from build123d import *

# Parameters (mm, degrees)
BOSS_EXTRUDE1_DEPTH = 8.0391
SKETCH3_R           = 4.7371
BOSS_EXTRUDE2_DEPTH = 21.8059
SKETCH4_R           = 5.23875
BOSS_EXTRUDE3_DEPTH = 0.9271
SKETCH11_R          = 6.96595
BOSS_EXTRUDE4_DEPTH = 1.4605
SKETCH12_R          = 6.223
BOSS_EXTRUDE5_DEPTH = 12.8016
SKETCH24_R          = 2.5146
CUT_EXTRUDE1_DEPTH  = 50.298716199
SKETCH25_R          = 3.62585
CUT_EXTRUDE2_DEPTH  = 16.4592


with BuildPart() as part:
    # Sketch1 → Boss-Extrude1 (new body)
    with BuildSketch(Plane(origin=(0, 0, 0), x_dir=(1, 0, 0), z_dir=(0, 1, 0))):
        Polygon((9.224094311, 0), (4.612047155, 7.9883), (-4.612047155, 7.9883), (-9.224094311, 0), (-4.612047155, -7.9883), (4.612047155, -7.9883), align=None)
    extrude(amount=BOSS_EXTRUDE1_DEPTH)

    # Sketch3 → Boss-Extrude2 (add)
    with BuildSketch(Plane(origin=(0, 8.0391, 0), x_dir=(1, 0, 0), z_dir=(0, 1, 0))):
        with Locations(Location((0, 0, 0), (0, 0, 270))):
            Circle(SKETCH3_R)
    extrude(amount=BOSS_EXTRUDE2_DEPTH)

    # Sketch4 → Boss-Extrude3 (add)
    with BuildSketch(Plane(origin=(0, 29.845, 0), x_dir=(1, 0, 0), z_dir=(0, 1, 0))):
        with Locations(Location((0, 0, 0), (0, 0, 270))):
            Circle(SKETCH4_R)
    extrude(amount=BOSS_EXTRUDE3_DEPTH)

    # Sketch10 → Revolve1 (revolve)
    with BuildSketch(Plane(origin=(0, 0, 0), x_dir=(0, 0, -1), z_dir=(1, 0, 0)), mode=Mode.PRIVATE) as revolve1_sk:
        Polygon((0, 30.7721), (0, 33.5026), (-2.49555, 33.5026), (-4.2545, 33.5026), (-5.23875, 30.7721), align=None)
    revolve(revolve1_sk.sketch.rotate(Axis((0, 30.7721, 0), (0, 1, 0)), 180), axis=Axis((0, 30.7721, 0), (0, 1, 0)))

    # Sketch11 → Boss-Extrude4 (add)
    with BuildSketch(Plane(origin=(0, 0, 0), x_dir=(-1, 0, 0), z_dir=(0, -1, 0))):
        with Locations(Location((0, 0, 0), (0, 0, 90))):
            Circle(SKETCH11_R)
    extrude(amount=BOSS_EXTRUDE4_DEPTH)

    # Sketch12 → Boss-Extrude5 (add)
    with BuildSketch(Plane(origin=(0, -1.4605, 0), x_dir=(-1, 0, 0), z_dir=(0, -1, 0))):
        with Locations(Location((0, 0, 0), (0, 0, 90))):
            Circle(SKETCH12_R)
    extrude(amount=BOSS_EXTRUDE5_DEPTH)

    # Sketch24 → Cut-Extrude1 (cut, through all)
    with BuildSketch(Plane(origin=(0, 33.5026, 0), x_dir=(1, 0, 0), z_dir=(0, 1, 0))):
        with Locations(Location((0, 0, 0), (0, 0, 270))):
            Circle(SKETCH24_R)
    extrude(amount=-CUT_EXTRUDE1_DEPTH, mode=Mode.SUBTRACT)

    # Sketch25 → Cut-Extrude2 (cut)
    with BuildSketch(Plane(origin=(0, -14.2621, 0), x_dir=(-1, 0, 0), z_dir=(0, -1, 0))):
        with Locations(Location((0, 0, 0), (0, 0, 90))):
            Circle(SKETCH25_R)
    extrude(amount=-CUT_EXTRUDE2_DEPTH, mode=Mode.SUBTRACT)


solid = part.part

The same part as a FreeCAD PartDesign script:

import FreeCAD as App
import Part
import Sketcher
from FreeCAD import Vector
Q = App.Units.Quantity


def add_polygon(sketch, points):
    """Adds a closed chain of lines whose ends are joined by coincident constraints."""
    first, n = sketch.GeometryCount, len(points)
    for a, b in zip(points, points[1:] + points[:1]):
        sketch.addGeometry(Part.LineSegment(App.Vector(*a, 0), App.Vector(*b, 0)), False)
    for i in range(n):
        sketch.addConstraint(Sketcher.Constraint("Coincident", first + i, 2, first + (i + 1) % n, 1))

doc = App.newDocument("Part")
body = doc.addObject("PartDesign::Body", "Body")

# Sketch on XZ plane
sketch1 = body.newObject("Sketcher::SketchObject", "Sketch")
sketch1.AttachmentSupport = (doc.getObject("XZ_Plane"), [""])
sketch1.MapMode = "FlatFace"
add_polygon(sketch1, [(9, 0), (5, -8), (-5, -8), (-9, 0), (-5, 8), (5, 8)])  # lines 0-5
sketch1.addConstraint([
    Sketcher.Constraint("Horizontal", 1),
    Sketcher.Constraint("Horizontal", 4),
    Sketcher.Constraint("Symmetric", 0, 2, 3, 2, -1, 1),
    Sketcher.Constraint("Symmetric", 2, 2, 5, 2, -1, 1),
    Sketcher.Constraint("PointOnObject", 2, 2, -1),
    Sketcher.Constraint("Parallel", 2, 5),
    Sketcher.Constraint("Vertical", 1, 2, 3, 2),
    Sketcher.Constraint("Angle", 0, Q("-120 deg")),
    Sketcher.Constraint("DistanceY", 1, 2, 3, 2, Q("0.629 in")),
    Sketcher.Constraint("DistanceX", 1, 2, 1, 1, 9.224094),
])
pad1 = body.newObject("PartDesign::Pad", "Pad")
pad1.Profile = sketch1
pad1.Length = Q("0.3165 in")
pad1.Reversed = True

# Sketch on XZ plane
sketch2 = body.newObject("Sketcher::SketchObject", "Sketch001")
sketch2.AttachmentSupport = (doc.getObject("XZ_Plane"), [""])
sketch2.MapMode = "FlatFace"
sketch2.AttachmentOffset = App.Placement(Vector(0, 0, -0.3165 * 25.4), App.Rotation())
sketch2.addGeometry(Part.Circle(Vector(0, 0, 0), Vector(0, 0, 1), 4.7), False)
sketch2.addConstraint([
    Sketcher.Constraint("Coincident", 0, 3, -1, 1),
    Sketcher.Constraint("Diameter", 0, Q("0.373 in")),
])
pad2 = body.newObject("PartDesign::Pad", "Pad001")
pad2.Profile = sketch2
pad2.Length = Q("0.8585 in")
pad2.Reversed = True

# Sketch on XZ plane
sketch3 = body.newObject("Sketcher::SketchObject", "Sketch002")
sketch3.AttachmentSupport = (doc.getObject("XZ_Plane"), [""])
sketch3.MapMode = "FlatFace"
sketch3.AttachmentOffset = App.Placement(Vector(0, 0, -1.175 * 25.4), App.Rotation())
sketch3.addGeometry(Part.Circle(Vector(0, 0, 0), Vector(0, 0, 1), 5), False)
sketch3.addConstraint([
    Sketcher.Constraint("Coincident", 0, 3, -1, 1),
    Sketcher.Constraint("Diameter", 0, Q("0.4125 in")),
])
pad3 = body.newObject("PartDesign::Pad", "Pad002")
pad3.Profile = sketch3
pad3.Length = Q("0.0365 in")
pad3.Reversed = True

# Sketch on YZ plane
sketch4 = body.newObject("Sketcher::SketchObject", "Sketch003")
sketch4.AttachmentSupport = (doc.getObject("YZ_Plane"), [""])
sketch4.MapMode = "FlatFace"
add_polygon(sketch4, [(30.8, 0), (33.5, 0), (33.5, 4.3), (30.8, 5.2)])  # lines 0-3
sketch4.addConstraint([
    Sketcher.Constraint("Horizontal", 0),
    Sketcher.Constraint("Vertical", 1),
    Sketcher.Constraint("Vertical", 3),
    Sketcher.Constraint("PointOnObject", 0, 2, -1),
    Sketcher.Constraint("DistanceX", 0, 1, 0, 2, Q("0.1075 in")),
    Sketcher.Constraint("DistanceY", 1, 1, 1, 2, Q("0.1675 in")),
    Sketcher.Constraint("DistanceX", -1, 1, 0, 2, Q("1.319 in")),
    Sketcher.Constraint("DistanceY", 3, 2, 3, 1, 5.23875),
])
revolution = body.newObject("PartDesign::Revolution", "Revolution")
revolution.Profile = sketch4
revolution.ReferenceAxis = (sketch4, ["H_Axis"])
revolution.Angle = 360

# Sketch on XZ plane
sketch5 = body.newObject("Sketcher::SketchObject", "Sketch004")
sketch5.AttachmentSupport = (doc.getObject("XZ_Plane"), [""])
sketch5.MapMode = "FlatFace"
sketch5.addGeometry(Part.Circle(Vector(0, 0, 0), Vector(0, 0, 1), 7), False)
sketch5.addConstraint([
    Sketcher.Constraint("Coincident", 0, 3, -1, 1),
    Sketcher.Constraint("Diameter", 0, Q("0.5485 in")),
])
pad4 = body.newObject("PartDesign::Pad", "Pad003")
pad4.Profile = sketch5
pad4.Length = Q("0.0575 in")

# Sketch on XZ plane
sketch6 = body.newObject("Sketcher::SketchObject", "Sketch005")
sketch6.AttachmentSupport = (doc.getObject("XZ_Plane"), [""])
sketch6.MapMode = "FlatFace"
sketch6.AttachmentOffset = App.Placement(Vector(0, 0, 0.0575 * 25.4), App.Rotation())
sketch6.addGeometry(Part.Circle(Vector(0, 0, 0), Vector(0, 0, 1), 6), False)
sketch6.addConstraint([
    Sketcher.Constraint("Coincident", 0, 3, -1, 1),
    Sketcher.Constraint("Diameter", 0, Q("0.49 in")),
])
pad5 = body.newObject("PartDesign::Pad", "Pad004")
pad5.Profile = sketch6
pad5.Length = Q("0.504 in")

# Sketch on XZ plane
sketch7 = body.newObject("Sketcher::SketchObject", "Sketch006")
sketch7.AttachmentSupport = (doc.getObject("XZ_Plane"), [""])
sketch7.MapMode = "FlatFace"
sketch7.AttachmentOffset = App.Placement(Vector(0, 0, -1.319 * 25.4), App.Rotation())
sketch7.addGeometry(Part.Circle(Vector(0, 0, 0), Vector(0, 0, 1), 2.5), False)
sketch7.addConstraint([
    Sketcher.Constraint("Coincident", 0, 3, -1, 1),
    Sketcher.Constraint("Diameter", 0, Q("0.198 in")),
])
pocket1 = body.newObject("PartDesign::Pocket", "Pocket")
pocket1.Profile = sketch7
pocket1.Type = "ThroughAll"
pocket1.Reversed = True

# Sketch on XZ plane
sketch8 = body.newObject("Sketcher::SketchObject", "Sketch007")
sketch8.AttachmentSupport = (doc.getObject("XZ_Plane"), [""])
sketch8.MapMode = "FlatFace"
sketch8.AttachmentOffset = App.Placement(Vector(0, 0, 0.5615 * 25.4), App.Rotation())
sketch8.addGeometry(Part.Circle(Vector(0, 0, 0), Vector(0, 0, 1), 3.6), False)
sketch8.addConstraint([
    Sketcher.Constraint("Coincident", 0, 3, -1, 1),
    Sketcher.Constraint("Diameter", 0, Q("0.2855 in")),
])
pocket2 = body.newObject("PartDesign::Pocket", "Pocket001")
pocket2.Profile = sketch8
pocket2.Length = Q("0.648 in")

doc.recompute()
